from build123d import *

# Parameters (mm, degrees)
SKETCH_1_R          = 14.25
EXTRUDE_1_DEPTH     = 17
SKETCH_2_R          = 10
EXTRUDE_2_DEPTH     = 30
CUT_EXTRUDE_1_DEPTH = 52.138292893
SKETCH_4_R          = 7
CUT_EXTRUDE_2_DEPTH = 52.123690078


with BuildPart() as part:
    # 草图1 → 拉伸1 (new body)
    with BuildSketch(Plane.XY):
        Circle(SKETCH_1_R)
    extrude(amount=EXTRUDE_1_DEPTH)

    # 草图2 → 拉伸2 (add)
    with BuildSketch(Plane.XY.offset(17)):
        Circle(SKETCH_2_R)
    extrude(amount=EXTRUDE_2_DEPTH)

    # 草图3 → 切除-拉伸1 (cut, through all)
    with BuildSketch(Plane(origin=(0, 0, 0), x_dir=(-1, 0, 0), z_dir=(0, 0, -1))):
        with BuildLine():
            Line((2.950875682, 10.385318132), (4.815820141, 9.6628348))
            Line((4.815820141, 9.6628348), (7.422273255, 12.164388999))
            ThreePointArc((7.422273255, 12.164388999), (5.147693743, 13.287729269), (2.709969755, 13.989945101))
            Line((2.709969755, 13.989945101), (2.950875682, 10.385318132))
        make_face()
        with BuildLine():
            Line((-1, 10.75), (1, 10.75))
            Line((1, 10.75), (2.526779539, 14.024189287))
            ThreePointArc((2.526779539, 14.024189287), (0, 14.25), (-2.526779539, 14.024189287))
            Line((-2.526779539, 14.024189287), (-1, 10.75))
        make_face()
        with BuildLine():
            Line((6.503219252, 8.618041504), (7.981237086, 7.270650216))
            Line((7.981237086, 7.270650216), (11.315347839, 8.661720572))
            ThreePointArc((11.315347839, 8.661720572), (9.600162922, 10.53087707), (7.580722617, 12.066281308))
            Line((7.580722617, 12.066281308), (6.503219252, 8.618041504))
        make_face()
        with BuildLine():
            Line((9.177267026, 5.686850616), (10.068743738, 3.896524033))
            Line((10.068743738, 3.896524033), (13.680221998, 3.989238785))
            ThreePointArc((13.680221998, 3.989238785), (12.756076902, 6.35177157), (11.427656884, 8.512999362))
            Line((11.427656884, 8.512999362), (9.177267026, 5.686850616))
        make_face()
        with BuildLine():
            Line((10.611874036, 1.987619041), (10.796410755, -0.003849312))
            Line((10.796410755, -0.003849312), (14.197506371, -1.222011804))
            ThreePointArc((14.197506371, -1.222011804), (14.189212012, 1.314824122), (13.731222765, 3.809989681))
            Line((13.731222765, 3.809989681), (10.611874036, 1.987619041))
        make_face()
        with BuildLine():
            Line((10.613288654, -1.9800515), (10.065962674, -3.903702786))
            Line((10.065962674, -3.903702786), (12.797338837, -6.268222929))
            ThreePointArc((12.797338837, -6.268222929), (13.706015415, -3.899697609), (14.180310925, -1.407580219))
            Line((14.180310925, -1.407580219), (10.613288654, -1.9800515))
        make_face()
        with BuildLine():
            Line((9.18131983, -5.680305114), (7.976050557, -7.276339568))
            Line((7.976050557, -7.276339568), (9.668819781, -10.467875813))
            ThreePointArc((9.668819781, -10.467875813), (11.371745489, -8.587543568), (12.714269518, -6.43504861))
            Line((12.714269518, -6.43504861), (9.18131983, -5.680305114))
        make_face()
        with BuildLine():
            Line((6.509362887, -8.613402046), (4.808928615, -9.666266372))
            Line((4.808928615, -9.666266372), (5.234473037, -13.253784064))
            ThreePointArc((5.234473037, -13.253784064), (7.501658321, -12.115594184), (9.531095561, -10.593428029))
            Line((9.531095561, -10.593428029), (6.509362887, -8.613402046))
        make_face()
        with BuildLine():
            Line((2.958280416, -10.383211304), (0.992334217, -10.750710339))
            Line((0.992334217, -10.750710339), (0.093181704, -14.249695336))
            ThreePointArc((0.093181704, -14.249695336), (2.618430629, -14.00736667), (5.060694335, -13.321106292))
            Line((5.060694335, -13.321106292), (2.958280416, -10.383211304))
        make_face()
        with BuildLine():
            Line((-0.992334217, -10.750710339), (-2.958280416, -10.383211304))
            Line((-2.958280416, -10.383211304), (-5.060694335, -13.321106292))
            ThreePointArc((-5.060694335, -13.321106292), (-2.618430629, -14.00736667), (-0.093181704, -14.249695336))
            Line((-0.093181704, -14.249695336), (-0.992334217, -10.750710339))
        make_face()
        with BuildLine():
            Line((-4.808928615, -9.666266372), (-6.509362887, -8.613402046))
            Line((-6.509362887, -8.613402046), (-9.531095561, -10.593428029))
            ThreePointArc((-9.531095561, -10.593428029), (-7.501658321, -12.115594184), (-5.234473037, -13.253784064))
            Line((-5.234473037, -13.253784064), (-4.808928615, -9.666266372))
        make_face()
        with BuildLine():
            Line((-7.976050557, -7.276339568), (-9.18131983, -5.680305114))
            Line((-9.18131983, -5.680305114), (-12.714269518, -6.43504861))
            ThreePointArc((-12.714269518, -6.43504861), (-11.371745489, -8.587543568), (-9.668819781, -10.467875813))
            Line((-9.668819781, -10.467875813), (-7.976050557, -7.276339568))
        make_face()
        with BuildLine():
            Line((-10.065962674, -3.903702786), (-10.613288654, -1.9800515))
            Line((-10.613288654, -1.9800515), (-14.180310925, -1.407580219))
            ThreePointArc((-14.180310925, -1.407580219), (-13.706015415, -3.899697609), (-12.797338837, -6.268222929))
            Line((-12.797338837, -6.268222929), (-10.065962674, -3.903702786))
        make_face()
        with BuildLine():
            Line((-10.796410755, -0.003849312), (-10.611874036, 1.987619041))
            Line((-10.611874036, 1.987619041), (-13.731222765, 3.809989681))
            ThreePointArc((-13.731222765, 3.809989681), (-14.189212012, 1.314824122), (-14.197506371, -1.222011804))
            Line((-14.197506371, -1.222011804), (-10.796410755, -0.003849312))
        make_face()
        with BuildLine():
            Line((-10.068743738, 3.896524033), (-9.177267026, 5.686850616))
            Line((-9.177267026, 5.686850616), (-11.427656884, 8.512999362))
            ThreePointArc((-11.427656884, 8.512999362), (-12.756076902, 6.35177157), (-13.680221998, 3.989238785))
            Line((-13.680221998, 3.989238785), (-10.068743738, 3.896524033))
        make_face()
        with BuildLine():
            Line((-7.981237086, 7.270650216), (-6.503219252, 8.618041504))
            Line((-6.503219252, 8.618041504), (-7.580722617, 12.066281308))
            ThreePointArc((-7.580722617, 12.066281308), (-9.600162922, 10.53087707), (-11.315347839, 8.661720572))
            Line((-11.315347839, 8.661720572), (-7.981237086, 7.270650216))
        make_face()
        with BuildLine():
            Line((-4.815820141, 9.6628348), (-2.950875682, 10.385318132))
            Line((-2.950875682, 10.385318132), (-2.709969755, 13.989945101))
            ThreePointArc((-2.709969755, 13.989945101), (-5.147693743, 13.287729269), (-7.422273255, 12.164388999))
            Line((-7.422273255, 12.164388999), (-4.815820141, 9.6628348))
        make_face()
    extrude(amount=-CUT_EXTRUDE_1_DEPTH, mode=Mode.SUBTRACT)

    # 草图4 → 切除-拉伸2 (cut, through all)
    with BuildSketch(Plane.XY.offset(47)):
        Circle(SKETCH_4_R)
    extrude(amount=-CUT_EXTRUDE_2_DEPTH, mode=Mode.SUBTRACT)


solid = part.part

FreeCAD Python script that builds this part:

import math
import FreeCAD as App
import Part
import Sketcher

V = App.Vector
Q = App.Units.Quantity

doc = App.newDocument("Part")
body = doc.addObject("PartDesign::Body", "Body")

# Sketch on XY plane
sketch1 = doc.addObject("Sketcher::SketchObject", "Sketch")
body.addObject(sketch1)
sketch1.AttachmentSupport = (doc.XY_Plane, [""])
sketch1.MapMode = "FlatFace"
sketch1.addGeometry(Part.Circle(V(0, 0, 0), V(0, 0, 1), 14), False)
sketch1.addConstraint([
    Sketcher.Constraint("Coincident", 0, 3, -1, 1),
    Sketcher.Constraint("Diameter", 0, 28.5),
])
pad1 = doc.addObject("PartDesign::Pad", "Pad")
body.addObject(pad1)
pad1.Profile = sketch1
pad1.Length = 17

# Sketch on XY plane
sketch2 = doc.addObject("Sketcher::SketchObject", "Sketch001")
body.addObject(sketch2)
sketch2.AttachmentSupport = (doc.XY_Plane, [""])
sketch2.MapMode = "FlatFace"
sketch2.AttachmentOffset = App.Placement(V(0, 0, 17), App.Rotation())
sketch2.addGeometry(Part.Circle(V(0, 0, 0), V(0, 0, 1), 10), False)
sketch2.addConstraint([
    Sketcher.Constraint("Coincident", 0, 3, -1, 1),
    Sketcher.Constraint("Diameter", 0, 20.0),
])
pad2 = doc.addObject("PartDesign::Pad", "Pad001")
body.addObject(pad2)
pad2.Profile = sketch2
pad2.Length = 30

# Sketch on XY plane
sketch3 = doc.addObject("Sketcher::SketchObject", "Sketch002")
body.addObject(sketch3)
sketch3.AttachmentSupport = (doc.XY_Plane, [""])
sketch3.MapMode = "FlatFace"
sketch3.addGeometry([
    Part.LineSegment(V(-2.950876, 10.385318, 0), V(-4.81582, 9.662835, 0)),  # 0
    Part.LineSegment(V(-4.81582, 9.662835, 0), V(-7.422273, 12.164389, 0)),  # 1
    Part.ArcOfCircle(Part.Circle(V(0, 0, 0), V(0, 0, 1), 14.25), math.radians(100.962899), math.radians(121.390042)),  # 2
    Part.LineSegment(V(-2.70997, 13.989945, 0), V(-2.950876, 10.385318, 0)),  # 3
    Part.LineSegment(V(1, 10.75, 0), V(-1, 10.75, 0)),  # 4
    Part.LineSegment(V(-1, 10.75, 0), V(-2.52678, 14.024189, 0)),  # 5
    Part.ArcOfCircle(Part.Circle(V(0, 0, 0), V(0, 0, 1), 14.25), math.radians(79.786428), math.radians(100.213572)),  # 6
    Part.LineSegment(V(2.52678, 14.024189, 0), V(1, 10.75, 0)),  # 7
    Part.LineSegment(V(-6.503219, 8.618042, 0), V(-7.981237, 7.27065, 0)),  # 8
    Part.LineSegment(V(-7.981237, 7.27065, 0), V(-11.315348, 8.661721, 0)),  # 9
    Part.ArcOfCircle(Part.Circle(V(0, 0, 0), V(0, 0, 1), 14.25), math.radians(122.139369), math.radians(142.566513)),  # 10
    Part.LineSegment(V(-7.580723, 12.066281, 0), V(-6.503219, 8.618042, 0)),  # 11
    Part.LineSegment(V(-9.177267, 5.686851, 0), V(-10.068744, 3.896524, 0)),  # 12
    Part.LineSegment(V(-10.068744, 3.896524, 0), V(-13.680222, 3.989239, 0)),  # 13
    Part.ArcOfCircle(Part.Circle(V(0, 0, 0), V(0, 0, 1), 14.25), math.radians(143.31584), math.radians(163.742983)),  # 14
    Part.LineSegment(V(-11.427657, 8.512999, 0), V(-9.177267, 5.686851, 0)),  # 15
    Part.LineSegment(V(-10.611874, 1.987619, 0), V(-10.796411, -0.003849, 0)),  # 16
    Part.LineSegment(V(-10.796411, -0.003849, 0), V(-14.197506, -1.222012, 0)),  # 17
    Part.ArcOfCircle(Part.Circle(V(0, 0, 0), V(0, 0, 1), 14.25), math.radians(164.492311), math.radians(184.919454)),  # 18
    Part.LineSegment(V(-13.731223, 3.80999, 0), V(-10.611874, 1.987619, 0)),  # 19
    Part.LineSegment(V(-10.613289, -1.980052, 0), V(-10.065963, -3.903703, 0)),  # 20
    Part.LineSegment(V(-10.065963, -3.903703, 0), V(-12.797339, -6.268223, 0)),  # 21
    Part.ArcOfCircle(Part.Circle(V(0, 0, 0), V(0, 0, 1), 14.25), math.radians(-174.331219), math.radians(-153.904075)),  # 22
    Part.LineSegment(V(-14.180311, -1.40758, 0), V(-10.613289, -1.980052, 0)),  # 23
    Part.LineSegment(V(-9.18132, -5.680305, 0), V(-7.976051, -7.27634, 0)),  # 24
    Part.LineSegment(V(-7.976051, -7.27634, 0), V(-9.66882, -10.467876, 0)),  # 25
    Part.ArcOfCircle(Part.Circle(V(0, 0, 0), V(0, 0, 1), 14.25), math.radians(-153.154748), math.radians(-132.727605)),  # 26
    Part.LineSegment(V(-12.71427, -6.435049, 0), V(-9.18132, -5.680305, 0)),  # 27
    Part.LineSegment(V(-6.509363, -8.613402, 0), V(-4.808929, -9.666266, 0)),  # 28
    Part.LineSegment(V(-4.808929, -9.666266, 0), V(-5.234473, -13.253784, 0)),  # 29
    Part.ArcOfCircle(Part.Circle(V(0, 0, 0), V(0, 0, 1), 14.25), math.radians(-131.978278), math.radians(-111.551134)),  # 30
    Part.LineSegment(V(-9.531096, -10.593428, 0), V(-6.509363, -8.613402, 0)),  # 31
    Part.LineSegment(V(-2.95828, -10.383211, 0), V(-0.992334, -10.75071, 0)),  # 32
    Part.LineSegment(V(-0.992334, -10.75071, 0), V(-0.093182, -14.249695, 0)),  # 33
    Part.ArcOfCircle(Part.Circle(V(0, 0, 0), V(0, 0, 1), 14.25), math.radians(-110.801807), math.radians(-90.374664)),  # 34
    Part.LineSegment(V(-5.060694, -13.321106, 0), V(-2.95828, -10.383211, 0)),  # 35
    Part.LineSegment(V(0.992334, -10.75071, 0), V(2.95828, -10.383211, 0)),  # 36
    Part.LineSegment(V(2.95828, -10.383211, 0), V(5.060694, -13.321106, 0)),  # 37
    Part.ArcOfCircle(Part.Circle(V(0, 0, 0), V(0, 0, 1), 14.25), math.radians(-89.625336), math.radians(-69.198193)),  # 38
    Part.LineSegment(V(0.093182, -14.249695, 0), V(0.992334, -10.75071, 0)),  # 39
    Part.LineSegment(V(4.808929, -9.666266, 0), V(6.509363, -8.613402, 0)),  # 40
    Part.LineSegment(V(6.509363, -8.613402, 0), V(9.531096, -10.593428, 0)),  # 41
    Part.ArcOfCircle(Part.Circle(V(0, 0, 0), V(0, 0, 1), 14.25), math.radians(-68.448866), math.radians(-48.021722)),  # 42
    Part.LineSegment(V(5.234473, -13.253784, 0), V(4.808929, -9.666266, 0)),  # 43
    Part.LineSegment(V(7.976051, -7.27634, 0), V(9.18132, -5.680305, 0)),  # 44
    Part.LineSegment(V(9.18132, -5.680305, 0), V(12.71427, -6.435049, 0)),  # 45
    Part.ArcOfCircle(Part.Circle(V(0, 0, 0), V(0, 0, 1), 14.25), math.radians(-47.272395), math.radians(-26.845252)),  # 46
    Part.LineSegment(V(9.66882, -10.467876, 0), V(7.976051, -7.27634, 0)),  # 47
    Part.LineSegment(V(10.065963, -3.903703, 0), V(10.613289, -1.980052, 0)),  # 48
    Part.LineSegment(V(10.613289, -1.980052, 0), V(14.180311, -1.40758, 0)),  # 49
    Part.ArcOfCircle(Part.Circle(V(0, 0, 0), V(0, 0, 1), 14.25), math.radians(-26.095925), math.radians(-5.668781)),  # 50
    Part.LineSegment(V(12.797339, -6.268223, 0), V(10.065963, -3.903703, 0)),  # 51
    Part.LineSegment(V(10.796411, -0.003849, 0), V(10.611874, 1.987619, 0)),  # 52
    Part.LineSegment(V(10.611874, 1.987619, 0), V(13.731223, 3.80999, 0)),  # 53
    Part.ArcOfCircle(Part.Circle(V(0, 0, 0), V(0, 0, 1), 14.25), math.radians(-4.919454), math.radians(15.507689)),  # 54
    Part.LineSegment(V(14.197506, -1.222012, 0), V(10.796411, -0.003849, 0)),  # 55
    Part.LineSegment(V(10.068744, 3.896524, 0), V(9.177267, 5.686851, 0)),  # 56
    Part.LineSegment(V(9.177267, 5.686851, 0), V(11.427657, 8.512999, 0)),  # 57
    Part.ArcOfCircle(Part.Circle(V(0, 0, 0), V(0, 0, 1), 14.25), math.radians(16.257017), math.radians(36.68416)),  # 58
    Part.LineSegment(V(13.680222, 3.989239, 0), V(10.068744, 3.896524, 0)),  # 59
    Part.LineSegment(V(7.981237, 7.27065, 0), V(6.503219, 8.618042, 0)),  # 60
    Part.LineSegment(V(6.503219, 8.618042, 0), V(7.580723, 12.066281, 0)),  # 61
    Part.ArcOfCircle(Part.Circle(V(0, 0, 0), V(0, 0, 1), 14.25), math.radians(37.433487), math.radians(57.860631)),  # 62
    Part.LineSegment(V(11.315348, 8.661721, 0), V(7.981237, 7.27065, 0)),  # 63
    Part.LineSegment(V(4.81582, 9.662835, 0), V(2.950876, 10.385318, 0)),  # 64
    Part.LineSegment(V(2.950876, 10.385318, 0), V(2.70997, 13.989945, 0)),  # 65
    Part.ArcOfCircle(Part.Circle(V(0, 0, 0), V(0, 0, 1), 14.25), math.radians(58.609958), math.radians(79.037101)),  # 66
    Part.LineSegment(V(7.422273, 12.164389, 0), V(4.81582, 9.662835, 0)),  # 67
], False)
sketch3.addConstraint([
    Sketcher.Constraint("Coincident", 0, 2, 1, 1),
    Sketcher.Constraint("Coincident", 1, 2, 2, 2),
    Sketcher.Constraint("Coincident", 2, 1, 3, 1),
    Sketcher.Constraint("Coincident", 3, 2, 0, 1),
    Sketcher.Constraint("Coincident", 4, 2, 5, 1),
    Sketcher.Constraint("Coincident", 5, 2, 6, 2),
    Sketcher.Constraint("Coincident", 6, 1, 7, 1),
    Sketcher.Constraint("Coincident", 7, 2, 4, 1),
    Sketcher.Constraint("Coincident", 8, 2, 9, 1),
    Sketcher.Constraint("Coincident", 9, 2, 10, 2),
    Sketcher.Constraint("Coincident", 10, 1, 11, 1),
    Sketcher.Constraint("Coincident", 11, 2, 8, 1),
    Sketcher.Constraint("Coincident", 12, 2, 13, 1),
    Sketcher.Constraint("Coincident", 13, 2, 14, 2),
    Sketcher.Constraint("Coincident", 14, 1, 15, 1),
    Sketcher.Constraint("Coincident", 15, 2, 12, 1),
    Sketcher.Constraint("Coincident", 16, 2, 17, 1),
    Sketcher.Constraint("Coincident", 17, 2, 18, 2),
    Sketcher.Constraint("Coincident", 18, 1, 19, 1),
    Sketcher.Constraint("Coincident", 19, 2, 16, 1),
    Sketcher.Constraint("Coincident", 20, 2, 21, 1),
    Sketcher.Constraint("Coincident", 21, 2, 22, 2),
    Sketcher.Constraint("Coincident", 22, 1, 23, 1),
    Sketcher.Constraint("Coincident", 23, 2, 20, 1),
    Sketcher.Constraint("Coincident", 24, 2, 25, 1),
    Sketcher.Constraint("Coincident", 25, 2, 26, 2),
    Sketcher.Constraint("Coincident", 26, 1, 27, 1),
    Sketcher.Constraint("Coincident", 27, 2, 24, 1),
    Sketcher.Constraint("Coincident", 28, 2, 29, 1),
    Sketcher.Constraint("Coincident", 29, 2, 30, 2),
    Sketcher.Constraint("Coincident", 30, 1, 31, 1),
    Sketcher.Constraint("Coincident", 31, 2, 28, 1),
    Sketcher.Constraint("Coincident", 32, 2, 33, 1),
    Sketcher.Constraint("Coincident", 33, 2, 34, 2),
    Sketcher.Constraint("Coincident", 34, 1, 35, 1),
    Sketcher.Constraint("Coincident", 35, 2, 32, 1),
    Sketcher.Constraint("Coincident", 36, 2, 37, 1),
    Sketcher.Constraint("Coincident", 37, 2, 38, 2),
    Sketcher.Constraint("Coincident", 38, 1, 39, 1),
    Sketcher.Constraint("Coincident", 39, 2, 36, 1),
    Sketcher.Constraint("Coincident", 40, 2, 41, 1),
    Sketcher.Constraint("Coincident", 41, 2, 42, 2),
    Sketcher.Constraint("Coincident", 42, 1, 43, 1),
    Sketcher.Constraint("Coincident", 43, 2, 40, 1),
    Sketcher.Constraint("Coincident", 44, 2, 45, 1),
    Sketcher.Constraint("Coincident", 45, 2, 46, 2),
    Sketcher.Constraint("Coincident", 46, 1, 47, 1),
    Sketcher.Constraint("Coincident", 47, 2, 44, 1),
    Sketcher.Constraint("Coincident", 48, 2, 49, 1),
    Sketcher.Constraint("Coincident", 49, 2, 50, 2),
    Sketcher.Constraint("Coincident", 50, 1, 51, 1),
    Sketcher.Constraint("Coincident", 51, 2, 48, 1),
    Sketcher.Constraint("Coincident", 52, 2, 53, 1),
    Sketcher.Constraint("Coincident", 53, 2, 54, 2),
    Sketcher.Constraint("Coincident", 54, 1, 55, 1),
    Sketcher.Constraint("Coincident", 55, 2, 52, 1),
    Sketcher.Constraint("Coincident", 56, 2, 57, 1),
    Sketcher.Constraint("Coincident", 57, 2, 58, 2),
    Sketcher.Constraint("Coincident", 58, 1, 59, 1),
    Sketcher.Constraint("Coincident", 59, 2, 56, 1),
    Sketcher.Constraint("Coincident", 60, 2, 61, 1),
    Sketcher.Constraint("Coincident", 61, 2, 62, 2),
    Sketcher.Constraint("Coincident", 62, 1, 63, 1),
    Sketcher.Constraint("Coincident", 63, 2, 60, 1),
    Sketcher.Constraint("Coincident", 64, 2, 65, 1),
    Sketcher.Constraint("Coincident", 65, 2, 66, 2),
    Sketcher.Constraint("Coincident", 66, 1, 67, 1),
    Sketcher.Constraint("Coincident", 67, 2, 64, 1),
    Sketcher.Constraint("Horizontal", 4),
    Sketcher.Constraint("Coincident", 2, 3, -1, 1),
    Sketcher.Constraint("Coincident", 6, 3, -1, 1),
    Sketcher.Constraint("Coincident", 10, 3, -1, 1),
    Sketcher.Constraint("Coincident", 14, 3, -1, 1),
    Sketcher.Constraint("Coincident", 18, 3, -1, 1),
    Sketcher.Constraint("Coincident", 22, 3, -1, 1),
    Sketcher.Constraint("Coincident", 26, 3, -1, 1),
    Sketcher.Constraint("Coincident", 30, 3, -1, 1),
    Sketcher.Constraint("Coincident", 34, 3, -1, 1),
    Sketcher.Constraint("Coincident", 38, 3, -1, 1),
    Sketcher.Constraint("Coincident", 42, 3, -1, 1),
    Sketcher.Constraint("Coincident", 46, 3, -1, 1),
    Sketcher.Constraint("Coincident", 50, 3, -1, 1),
    Sketcher.Constraint("Coincident", 54, 3, -1, 1),
    Sketcher.Constraint("Coincident", 58, 3, -1, 1),
    Sketcher.Constraint("Coincident", 62, 3, -1, 1),
    Sketcher.Constraint("Coincident", 66, 3, -1, 1),
    Sketcher.Constraint("Equal", 2, 6),
    Sketcher.Constraint("Equal", 6, 10),
    Sketcher.Constraint("Equal", 10, 14),
    Sketcher.Constraint("Equal", 14, 18),
    Sketcher.Constraint("Equal", 18, 22),
    Sketcher.Constraint("Equal", 22, 26),
    Sketcher.Constraint("Equal", 26, 30),
    Sketcher.Constraint("Equal", 30, 34),
    Sketcher.Constraint("Equal", 34, 38),
    Sketcher.Constraint("Equal", 38, 42),
    Sketcher.Constraint("Equal", 42, 46),
    Sketcher.Constraint("Equal", 46, 50),
    Sketcher.Constraint("Equal", 50, 54),
    Sketcher.Constraint("Equal", 54, 58),
    Sketcher.Constraint("Equal", 58, 62),
    Sketcher.Constraint("Equal", 62, 66),
    Sketcher.Constraint("Symmetric", 35, 2, 36, 2, -2),
    Sketcher.Constraint("Symmetric", 32, 2, 39, 2, -2),
    Sketcher.Constraint("Symmetric", 31, 2, 40, 2, -2),
    Sketcher.Constraint("Symmetric", 28, 2, 43, 2, -2),
    Sketcher.Constraint("Symmetric", 27, 2, 44, 2, -2),
    Sketcher.Constraint("Symmetric", 24, 2, 47, 2, -2),
    Sketcher.Constraint("Symmetric", 23, 2, 48, 2, -2),
    Sketcher.Constraint("Symmetric", 20, 2, 51, 2, -2),
    Sketcher.Constraint("Symmetric", 19, 2, 52, 2, -2),
    Sketcher.Constraint("Symmetric", 16, 2, 55, 2, -2),
    Sketcher.Constraint("Symmetric", 15, 2, 56, 2, -2),
    Sketcher.Constraint("Symmetric", 12, 2, 59, 2, -2),
    Sketcher.Constraint("Symmetric", 11, 2, 60, 2, -2),
    Sketcher.Constraint("Symmetric", 8, 2, 63, 2, -2),
    Sketcher.Constraint("Symmetric", 3, 2, 64, 2, -2),
    Sketcher.Constraint("Symmetric", 0, 2, 67, 2, -2),
    Sketcher.Constraint("Horizontal", 5, 2, 6, 1),
    Sketcher.Constraint("Horizontal", 34, 1, 37, 2),
    Sketcher.Constraint("Horizontal", 33, 2, 38, 1),
    Sketcher.Constraint("Horizontal", 30, 1, 41, 2),
    Sketcher.Constraint("Horizontal", 29, 2, 42, 1),
    Sketcher.Constraint("Horizontal", 26, 1, 45, 2),
    Sketcher.Constraint("Horizontal", 25, 2, 46, 1),
    Sketcher.Constraint("Horizontal", 22, 1, 49, 2),
    Sketcher.Constraint("Horizontal", 21, 2, 50, 1),
    Sketcher.Constraint("Horizontal", 18, 1, 53, 2),
    Sketcher.Constraint("Horizontal", 17, 2, 54, 1),
    Sketcher.Constraint("Horizontal", 14, 1, 57, 2),
    Sketcher.Constraint("Horizontal", 13, 2, 58, 1),
    Sketcher.Constraint("Horizontal", 10, 1, 61, 2),
    Sketcher.Constraint("Horizontal", 9, 2, 62, 1),
    Sketcher.Constraint("Horizontal", 2, 1, 65, 2),
    Sketcher.Constraint("Horizontal", 1, 2, 66, 1),
    Sketcher.Constraint("Equal", 1, 3),
    Sketcher.Constraint("Equal", 3, 5),
    Sketcher.Constraint("Equal", 5, 7),
    Sketcher.Constraint("Equal", 0, 8),
    Sketcher.Constraint("Equal", 7, 9),
    Sketcher.Constraint("Equal", 9, 11),
    Sketcher.Constraint("Equal", 8, 12),
    Sketcher.Constraint("Equal", 11, 13),
    Sketcher.Constraint("Equal", 13, 15),
    Sketcher.Constraint("Equal", 12, 16),
    Sketcher.Constraint("Equal", 15, 17),
    Sketcher.Constraint("Equal", 17, 19),
    Sketcher.Constraint("Equal", 16, 20),
    Sketcher.Constraint("Equal", 19, 21),
    Sketcher.Constraint("Equal", 21, 23),
    Sketcher.Constraint("Equal", 20, 24),
    Sketcher.Constraint("Equal", 23, 25),
    Sketcher.Constraint("Equal", 25, 27),
    Sketcher.Constraint("Equal", 24, 28),
    Sketcher.Constraint("Equal", 27, 29),
    Sketcher.Constraint("Equal", 29, 31),
    Sketcher.Constraint("Equal", 28, 32),
    Sketcher.Constraint("Equal", 31, 33),
    Sketcher.Constraint("Equal", 33, 35),
    Sketcher.Constraint("DistanceX", 4, 2, 4, 1, 2.0),
    Sketcher.Constraint("Angle", 5, Q("115 deg")),
    Sketcher.Constraint("Radius", 2, 14.25),
    Sketcher.Constraint("Distance", 0, 2.0),
    Sketcher.Constraint("DistanceY", -1, 1, 4, 2, 10.75),
    Sketcher.Constraint("DistanceY", -1, 1, 14, 1, 8.512999),
    Sketcher.Constraint("DistanceX", 0, 2, -1, 1, 4.81582),
    Sketcher.Constraint("DistanceY", -1, 1, 1, 2, 12.164389),
    Sketcher.Constraint("DistanceX", 2, 1, -1, 1, 2.70997),
    Sketcher.Constraint("DistanceY", -1, 1, 8, 2, 7.27065),
    Sketcher.Constraint("DistanceY", -1, 1, 9, 2, 8.661721),
    Sketcher.Constraint("DistanceY", -1, 1, 10, 1, 12.066281),
    Sketcher.Constraint("DistanceX", 13, 2, -1, 1, 13.680222),
    Sketcher.Constraint("DistanceY", -1, 1, 15, 2, 5.686851),
    Sketcher.Constraint("DistanceX", 16, 2, -1, 1, 10.796411),
    Sketcher.Constraint("DistanceY", 16, 2, -1, 1, 0.003849),
    Sketcher.Constraint("DistanceY", -1, 1, 18, 1, 3.80999),
    Sketcher.Constraint("DistanceX", 21, 2, -1, 1, 12.797339),
    Sketcher.Constraint("DistanceX", 22, 1, -1, 1, 14.180311),
    Sketcher.Constraint("DistanceX", 23, 2, -1, 1, 10.613289),
    Sketcher.Constraint("DistanceX", 24, 2, -1, 1, 7.976051),
    Sketcher.Constraint("DistanceY", 24, 2, -1, 1, 7.27634),
    Sketcher.Constraint("DistanceX", 26, 1, -1, 1, 12.71427),
    Sketcher.Constraint("DistanceX", 28, 2, -1, 1, 4.808929),
    Sketcher.Constraint("DistanceY", 30, 1, -1, 1, 10.593428),
    Sketcher.Constraint("DistanceY", 32, 2, -1, 1, 10.75071),
    Sketcher.Constraint("DistanceX", 33, 2, -1, 1, 0.093182),
    Sketcher.Constraint("DistanceX", 35, 2, -1, 1, 2.95828),
    Sketcher.Constraint("DistanceY", 28, 2, -1, 1, 9.666266),
])
pocket1 = doc.addObject("PartDesign::Pocket", "Pocket")
body.addObject(pocket1)
pocket1.Profile = sketch3
pocket1.Type = "ThroughAll"
pocket1.Reversed = True

# Sketch on XY plane
sketch4 = doc.addObject("Sketcher::SketchObject", "Sketch003")
body.addObject(sketch4)
sketch4.AttachmentSupport = (doc.XY_Plane, [""])
sketch4.MapMode = "FlatFace"
sketch4.AttachmentOffset = App.Placement(V(0, 0, 47), App.Rotation())
sketch4.addGeometry(Part.Circle(V(0, 0, 0), V(0, 0, 1), 7), False)
sketch4.addConstraint([
    Sketcher.Constraint("Coincident", 0, 3, -1, 1),
    Sketcher.Constraint("Diameter", 0, 14.0),
])
pocket2 = doc.addObject("PartDesign::Pocket", "Pocket001")
body.addObject(pocket2)
pocket2.Profile = sketch4
pocket2.Type = "ThroughAll"

doc.recompute()
